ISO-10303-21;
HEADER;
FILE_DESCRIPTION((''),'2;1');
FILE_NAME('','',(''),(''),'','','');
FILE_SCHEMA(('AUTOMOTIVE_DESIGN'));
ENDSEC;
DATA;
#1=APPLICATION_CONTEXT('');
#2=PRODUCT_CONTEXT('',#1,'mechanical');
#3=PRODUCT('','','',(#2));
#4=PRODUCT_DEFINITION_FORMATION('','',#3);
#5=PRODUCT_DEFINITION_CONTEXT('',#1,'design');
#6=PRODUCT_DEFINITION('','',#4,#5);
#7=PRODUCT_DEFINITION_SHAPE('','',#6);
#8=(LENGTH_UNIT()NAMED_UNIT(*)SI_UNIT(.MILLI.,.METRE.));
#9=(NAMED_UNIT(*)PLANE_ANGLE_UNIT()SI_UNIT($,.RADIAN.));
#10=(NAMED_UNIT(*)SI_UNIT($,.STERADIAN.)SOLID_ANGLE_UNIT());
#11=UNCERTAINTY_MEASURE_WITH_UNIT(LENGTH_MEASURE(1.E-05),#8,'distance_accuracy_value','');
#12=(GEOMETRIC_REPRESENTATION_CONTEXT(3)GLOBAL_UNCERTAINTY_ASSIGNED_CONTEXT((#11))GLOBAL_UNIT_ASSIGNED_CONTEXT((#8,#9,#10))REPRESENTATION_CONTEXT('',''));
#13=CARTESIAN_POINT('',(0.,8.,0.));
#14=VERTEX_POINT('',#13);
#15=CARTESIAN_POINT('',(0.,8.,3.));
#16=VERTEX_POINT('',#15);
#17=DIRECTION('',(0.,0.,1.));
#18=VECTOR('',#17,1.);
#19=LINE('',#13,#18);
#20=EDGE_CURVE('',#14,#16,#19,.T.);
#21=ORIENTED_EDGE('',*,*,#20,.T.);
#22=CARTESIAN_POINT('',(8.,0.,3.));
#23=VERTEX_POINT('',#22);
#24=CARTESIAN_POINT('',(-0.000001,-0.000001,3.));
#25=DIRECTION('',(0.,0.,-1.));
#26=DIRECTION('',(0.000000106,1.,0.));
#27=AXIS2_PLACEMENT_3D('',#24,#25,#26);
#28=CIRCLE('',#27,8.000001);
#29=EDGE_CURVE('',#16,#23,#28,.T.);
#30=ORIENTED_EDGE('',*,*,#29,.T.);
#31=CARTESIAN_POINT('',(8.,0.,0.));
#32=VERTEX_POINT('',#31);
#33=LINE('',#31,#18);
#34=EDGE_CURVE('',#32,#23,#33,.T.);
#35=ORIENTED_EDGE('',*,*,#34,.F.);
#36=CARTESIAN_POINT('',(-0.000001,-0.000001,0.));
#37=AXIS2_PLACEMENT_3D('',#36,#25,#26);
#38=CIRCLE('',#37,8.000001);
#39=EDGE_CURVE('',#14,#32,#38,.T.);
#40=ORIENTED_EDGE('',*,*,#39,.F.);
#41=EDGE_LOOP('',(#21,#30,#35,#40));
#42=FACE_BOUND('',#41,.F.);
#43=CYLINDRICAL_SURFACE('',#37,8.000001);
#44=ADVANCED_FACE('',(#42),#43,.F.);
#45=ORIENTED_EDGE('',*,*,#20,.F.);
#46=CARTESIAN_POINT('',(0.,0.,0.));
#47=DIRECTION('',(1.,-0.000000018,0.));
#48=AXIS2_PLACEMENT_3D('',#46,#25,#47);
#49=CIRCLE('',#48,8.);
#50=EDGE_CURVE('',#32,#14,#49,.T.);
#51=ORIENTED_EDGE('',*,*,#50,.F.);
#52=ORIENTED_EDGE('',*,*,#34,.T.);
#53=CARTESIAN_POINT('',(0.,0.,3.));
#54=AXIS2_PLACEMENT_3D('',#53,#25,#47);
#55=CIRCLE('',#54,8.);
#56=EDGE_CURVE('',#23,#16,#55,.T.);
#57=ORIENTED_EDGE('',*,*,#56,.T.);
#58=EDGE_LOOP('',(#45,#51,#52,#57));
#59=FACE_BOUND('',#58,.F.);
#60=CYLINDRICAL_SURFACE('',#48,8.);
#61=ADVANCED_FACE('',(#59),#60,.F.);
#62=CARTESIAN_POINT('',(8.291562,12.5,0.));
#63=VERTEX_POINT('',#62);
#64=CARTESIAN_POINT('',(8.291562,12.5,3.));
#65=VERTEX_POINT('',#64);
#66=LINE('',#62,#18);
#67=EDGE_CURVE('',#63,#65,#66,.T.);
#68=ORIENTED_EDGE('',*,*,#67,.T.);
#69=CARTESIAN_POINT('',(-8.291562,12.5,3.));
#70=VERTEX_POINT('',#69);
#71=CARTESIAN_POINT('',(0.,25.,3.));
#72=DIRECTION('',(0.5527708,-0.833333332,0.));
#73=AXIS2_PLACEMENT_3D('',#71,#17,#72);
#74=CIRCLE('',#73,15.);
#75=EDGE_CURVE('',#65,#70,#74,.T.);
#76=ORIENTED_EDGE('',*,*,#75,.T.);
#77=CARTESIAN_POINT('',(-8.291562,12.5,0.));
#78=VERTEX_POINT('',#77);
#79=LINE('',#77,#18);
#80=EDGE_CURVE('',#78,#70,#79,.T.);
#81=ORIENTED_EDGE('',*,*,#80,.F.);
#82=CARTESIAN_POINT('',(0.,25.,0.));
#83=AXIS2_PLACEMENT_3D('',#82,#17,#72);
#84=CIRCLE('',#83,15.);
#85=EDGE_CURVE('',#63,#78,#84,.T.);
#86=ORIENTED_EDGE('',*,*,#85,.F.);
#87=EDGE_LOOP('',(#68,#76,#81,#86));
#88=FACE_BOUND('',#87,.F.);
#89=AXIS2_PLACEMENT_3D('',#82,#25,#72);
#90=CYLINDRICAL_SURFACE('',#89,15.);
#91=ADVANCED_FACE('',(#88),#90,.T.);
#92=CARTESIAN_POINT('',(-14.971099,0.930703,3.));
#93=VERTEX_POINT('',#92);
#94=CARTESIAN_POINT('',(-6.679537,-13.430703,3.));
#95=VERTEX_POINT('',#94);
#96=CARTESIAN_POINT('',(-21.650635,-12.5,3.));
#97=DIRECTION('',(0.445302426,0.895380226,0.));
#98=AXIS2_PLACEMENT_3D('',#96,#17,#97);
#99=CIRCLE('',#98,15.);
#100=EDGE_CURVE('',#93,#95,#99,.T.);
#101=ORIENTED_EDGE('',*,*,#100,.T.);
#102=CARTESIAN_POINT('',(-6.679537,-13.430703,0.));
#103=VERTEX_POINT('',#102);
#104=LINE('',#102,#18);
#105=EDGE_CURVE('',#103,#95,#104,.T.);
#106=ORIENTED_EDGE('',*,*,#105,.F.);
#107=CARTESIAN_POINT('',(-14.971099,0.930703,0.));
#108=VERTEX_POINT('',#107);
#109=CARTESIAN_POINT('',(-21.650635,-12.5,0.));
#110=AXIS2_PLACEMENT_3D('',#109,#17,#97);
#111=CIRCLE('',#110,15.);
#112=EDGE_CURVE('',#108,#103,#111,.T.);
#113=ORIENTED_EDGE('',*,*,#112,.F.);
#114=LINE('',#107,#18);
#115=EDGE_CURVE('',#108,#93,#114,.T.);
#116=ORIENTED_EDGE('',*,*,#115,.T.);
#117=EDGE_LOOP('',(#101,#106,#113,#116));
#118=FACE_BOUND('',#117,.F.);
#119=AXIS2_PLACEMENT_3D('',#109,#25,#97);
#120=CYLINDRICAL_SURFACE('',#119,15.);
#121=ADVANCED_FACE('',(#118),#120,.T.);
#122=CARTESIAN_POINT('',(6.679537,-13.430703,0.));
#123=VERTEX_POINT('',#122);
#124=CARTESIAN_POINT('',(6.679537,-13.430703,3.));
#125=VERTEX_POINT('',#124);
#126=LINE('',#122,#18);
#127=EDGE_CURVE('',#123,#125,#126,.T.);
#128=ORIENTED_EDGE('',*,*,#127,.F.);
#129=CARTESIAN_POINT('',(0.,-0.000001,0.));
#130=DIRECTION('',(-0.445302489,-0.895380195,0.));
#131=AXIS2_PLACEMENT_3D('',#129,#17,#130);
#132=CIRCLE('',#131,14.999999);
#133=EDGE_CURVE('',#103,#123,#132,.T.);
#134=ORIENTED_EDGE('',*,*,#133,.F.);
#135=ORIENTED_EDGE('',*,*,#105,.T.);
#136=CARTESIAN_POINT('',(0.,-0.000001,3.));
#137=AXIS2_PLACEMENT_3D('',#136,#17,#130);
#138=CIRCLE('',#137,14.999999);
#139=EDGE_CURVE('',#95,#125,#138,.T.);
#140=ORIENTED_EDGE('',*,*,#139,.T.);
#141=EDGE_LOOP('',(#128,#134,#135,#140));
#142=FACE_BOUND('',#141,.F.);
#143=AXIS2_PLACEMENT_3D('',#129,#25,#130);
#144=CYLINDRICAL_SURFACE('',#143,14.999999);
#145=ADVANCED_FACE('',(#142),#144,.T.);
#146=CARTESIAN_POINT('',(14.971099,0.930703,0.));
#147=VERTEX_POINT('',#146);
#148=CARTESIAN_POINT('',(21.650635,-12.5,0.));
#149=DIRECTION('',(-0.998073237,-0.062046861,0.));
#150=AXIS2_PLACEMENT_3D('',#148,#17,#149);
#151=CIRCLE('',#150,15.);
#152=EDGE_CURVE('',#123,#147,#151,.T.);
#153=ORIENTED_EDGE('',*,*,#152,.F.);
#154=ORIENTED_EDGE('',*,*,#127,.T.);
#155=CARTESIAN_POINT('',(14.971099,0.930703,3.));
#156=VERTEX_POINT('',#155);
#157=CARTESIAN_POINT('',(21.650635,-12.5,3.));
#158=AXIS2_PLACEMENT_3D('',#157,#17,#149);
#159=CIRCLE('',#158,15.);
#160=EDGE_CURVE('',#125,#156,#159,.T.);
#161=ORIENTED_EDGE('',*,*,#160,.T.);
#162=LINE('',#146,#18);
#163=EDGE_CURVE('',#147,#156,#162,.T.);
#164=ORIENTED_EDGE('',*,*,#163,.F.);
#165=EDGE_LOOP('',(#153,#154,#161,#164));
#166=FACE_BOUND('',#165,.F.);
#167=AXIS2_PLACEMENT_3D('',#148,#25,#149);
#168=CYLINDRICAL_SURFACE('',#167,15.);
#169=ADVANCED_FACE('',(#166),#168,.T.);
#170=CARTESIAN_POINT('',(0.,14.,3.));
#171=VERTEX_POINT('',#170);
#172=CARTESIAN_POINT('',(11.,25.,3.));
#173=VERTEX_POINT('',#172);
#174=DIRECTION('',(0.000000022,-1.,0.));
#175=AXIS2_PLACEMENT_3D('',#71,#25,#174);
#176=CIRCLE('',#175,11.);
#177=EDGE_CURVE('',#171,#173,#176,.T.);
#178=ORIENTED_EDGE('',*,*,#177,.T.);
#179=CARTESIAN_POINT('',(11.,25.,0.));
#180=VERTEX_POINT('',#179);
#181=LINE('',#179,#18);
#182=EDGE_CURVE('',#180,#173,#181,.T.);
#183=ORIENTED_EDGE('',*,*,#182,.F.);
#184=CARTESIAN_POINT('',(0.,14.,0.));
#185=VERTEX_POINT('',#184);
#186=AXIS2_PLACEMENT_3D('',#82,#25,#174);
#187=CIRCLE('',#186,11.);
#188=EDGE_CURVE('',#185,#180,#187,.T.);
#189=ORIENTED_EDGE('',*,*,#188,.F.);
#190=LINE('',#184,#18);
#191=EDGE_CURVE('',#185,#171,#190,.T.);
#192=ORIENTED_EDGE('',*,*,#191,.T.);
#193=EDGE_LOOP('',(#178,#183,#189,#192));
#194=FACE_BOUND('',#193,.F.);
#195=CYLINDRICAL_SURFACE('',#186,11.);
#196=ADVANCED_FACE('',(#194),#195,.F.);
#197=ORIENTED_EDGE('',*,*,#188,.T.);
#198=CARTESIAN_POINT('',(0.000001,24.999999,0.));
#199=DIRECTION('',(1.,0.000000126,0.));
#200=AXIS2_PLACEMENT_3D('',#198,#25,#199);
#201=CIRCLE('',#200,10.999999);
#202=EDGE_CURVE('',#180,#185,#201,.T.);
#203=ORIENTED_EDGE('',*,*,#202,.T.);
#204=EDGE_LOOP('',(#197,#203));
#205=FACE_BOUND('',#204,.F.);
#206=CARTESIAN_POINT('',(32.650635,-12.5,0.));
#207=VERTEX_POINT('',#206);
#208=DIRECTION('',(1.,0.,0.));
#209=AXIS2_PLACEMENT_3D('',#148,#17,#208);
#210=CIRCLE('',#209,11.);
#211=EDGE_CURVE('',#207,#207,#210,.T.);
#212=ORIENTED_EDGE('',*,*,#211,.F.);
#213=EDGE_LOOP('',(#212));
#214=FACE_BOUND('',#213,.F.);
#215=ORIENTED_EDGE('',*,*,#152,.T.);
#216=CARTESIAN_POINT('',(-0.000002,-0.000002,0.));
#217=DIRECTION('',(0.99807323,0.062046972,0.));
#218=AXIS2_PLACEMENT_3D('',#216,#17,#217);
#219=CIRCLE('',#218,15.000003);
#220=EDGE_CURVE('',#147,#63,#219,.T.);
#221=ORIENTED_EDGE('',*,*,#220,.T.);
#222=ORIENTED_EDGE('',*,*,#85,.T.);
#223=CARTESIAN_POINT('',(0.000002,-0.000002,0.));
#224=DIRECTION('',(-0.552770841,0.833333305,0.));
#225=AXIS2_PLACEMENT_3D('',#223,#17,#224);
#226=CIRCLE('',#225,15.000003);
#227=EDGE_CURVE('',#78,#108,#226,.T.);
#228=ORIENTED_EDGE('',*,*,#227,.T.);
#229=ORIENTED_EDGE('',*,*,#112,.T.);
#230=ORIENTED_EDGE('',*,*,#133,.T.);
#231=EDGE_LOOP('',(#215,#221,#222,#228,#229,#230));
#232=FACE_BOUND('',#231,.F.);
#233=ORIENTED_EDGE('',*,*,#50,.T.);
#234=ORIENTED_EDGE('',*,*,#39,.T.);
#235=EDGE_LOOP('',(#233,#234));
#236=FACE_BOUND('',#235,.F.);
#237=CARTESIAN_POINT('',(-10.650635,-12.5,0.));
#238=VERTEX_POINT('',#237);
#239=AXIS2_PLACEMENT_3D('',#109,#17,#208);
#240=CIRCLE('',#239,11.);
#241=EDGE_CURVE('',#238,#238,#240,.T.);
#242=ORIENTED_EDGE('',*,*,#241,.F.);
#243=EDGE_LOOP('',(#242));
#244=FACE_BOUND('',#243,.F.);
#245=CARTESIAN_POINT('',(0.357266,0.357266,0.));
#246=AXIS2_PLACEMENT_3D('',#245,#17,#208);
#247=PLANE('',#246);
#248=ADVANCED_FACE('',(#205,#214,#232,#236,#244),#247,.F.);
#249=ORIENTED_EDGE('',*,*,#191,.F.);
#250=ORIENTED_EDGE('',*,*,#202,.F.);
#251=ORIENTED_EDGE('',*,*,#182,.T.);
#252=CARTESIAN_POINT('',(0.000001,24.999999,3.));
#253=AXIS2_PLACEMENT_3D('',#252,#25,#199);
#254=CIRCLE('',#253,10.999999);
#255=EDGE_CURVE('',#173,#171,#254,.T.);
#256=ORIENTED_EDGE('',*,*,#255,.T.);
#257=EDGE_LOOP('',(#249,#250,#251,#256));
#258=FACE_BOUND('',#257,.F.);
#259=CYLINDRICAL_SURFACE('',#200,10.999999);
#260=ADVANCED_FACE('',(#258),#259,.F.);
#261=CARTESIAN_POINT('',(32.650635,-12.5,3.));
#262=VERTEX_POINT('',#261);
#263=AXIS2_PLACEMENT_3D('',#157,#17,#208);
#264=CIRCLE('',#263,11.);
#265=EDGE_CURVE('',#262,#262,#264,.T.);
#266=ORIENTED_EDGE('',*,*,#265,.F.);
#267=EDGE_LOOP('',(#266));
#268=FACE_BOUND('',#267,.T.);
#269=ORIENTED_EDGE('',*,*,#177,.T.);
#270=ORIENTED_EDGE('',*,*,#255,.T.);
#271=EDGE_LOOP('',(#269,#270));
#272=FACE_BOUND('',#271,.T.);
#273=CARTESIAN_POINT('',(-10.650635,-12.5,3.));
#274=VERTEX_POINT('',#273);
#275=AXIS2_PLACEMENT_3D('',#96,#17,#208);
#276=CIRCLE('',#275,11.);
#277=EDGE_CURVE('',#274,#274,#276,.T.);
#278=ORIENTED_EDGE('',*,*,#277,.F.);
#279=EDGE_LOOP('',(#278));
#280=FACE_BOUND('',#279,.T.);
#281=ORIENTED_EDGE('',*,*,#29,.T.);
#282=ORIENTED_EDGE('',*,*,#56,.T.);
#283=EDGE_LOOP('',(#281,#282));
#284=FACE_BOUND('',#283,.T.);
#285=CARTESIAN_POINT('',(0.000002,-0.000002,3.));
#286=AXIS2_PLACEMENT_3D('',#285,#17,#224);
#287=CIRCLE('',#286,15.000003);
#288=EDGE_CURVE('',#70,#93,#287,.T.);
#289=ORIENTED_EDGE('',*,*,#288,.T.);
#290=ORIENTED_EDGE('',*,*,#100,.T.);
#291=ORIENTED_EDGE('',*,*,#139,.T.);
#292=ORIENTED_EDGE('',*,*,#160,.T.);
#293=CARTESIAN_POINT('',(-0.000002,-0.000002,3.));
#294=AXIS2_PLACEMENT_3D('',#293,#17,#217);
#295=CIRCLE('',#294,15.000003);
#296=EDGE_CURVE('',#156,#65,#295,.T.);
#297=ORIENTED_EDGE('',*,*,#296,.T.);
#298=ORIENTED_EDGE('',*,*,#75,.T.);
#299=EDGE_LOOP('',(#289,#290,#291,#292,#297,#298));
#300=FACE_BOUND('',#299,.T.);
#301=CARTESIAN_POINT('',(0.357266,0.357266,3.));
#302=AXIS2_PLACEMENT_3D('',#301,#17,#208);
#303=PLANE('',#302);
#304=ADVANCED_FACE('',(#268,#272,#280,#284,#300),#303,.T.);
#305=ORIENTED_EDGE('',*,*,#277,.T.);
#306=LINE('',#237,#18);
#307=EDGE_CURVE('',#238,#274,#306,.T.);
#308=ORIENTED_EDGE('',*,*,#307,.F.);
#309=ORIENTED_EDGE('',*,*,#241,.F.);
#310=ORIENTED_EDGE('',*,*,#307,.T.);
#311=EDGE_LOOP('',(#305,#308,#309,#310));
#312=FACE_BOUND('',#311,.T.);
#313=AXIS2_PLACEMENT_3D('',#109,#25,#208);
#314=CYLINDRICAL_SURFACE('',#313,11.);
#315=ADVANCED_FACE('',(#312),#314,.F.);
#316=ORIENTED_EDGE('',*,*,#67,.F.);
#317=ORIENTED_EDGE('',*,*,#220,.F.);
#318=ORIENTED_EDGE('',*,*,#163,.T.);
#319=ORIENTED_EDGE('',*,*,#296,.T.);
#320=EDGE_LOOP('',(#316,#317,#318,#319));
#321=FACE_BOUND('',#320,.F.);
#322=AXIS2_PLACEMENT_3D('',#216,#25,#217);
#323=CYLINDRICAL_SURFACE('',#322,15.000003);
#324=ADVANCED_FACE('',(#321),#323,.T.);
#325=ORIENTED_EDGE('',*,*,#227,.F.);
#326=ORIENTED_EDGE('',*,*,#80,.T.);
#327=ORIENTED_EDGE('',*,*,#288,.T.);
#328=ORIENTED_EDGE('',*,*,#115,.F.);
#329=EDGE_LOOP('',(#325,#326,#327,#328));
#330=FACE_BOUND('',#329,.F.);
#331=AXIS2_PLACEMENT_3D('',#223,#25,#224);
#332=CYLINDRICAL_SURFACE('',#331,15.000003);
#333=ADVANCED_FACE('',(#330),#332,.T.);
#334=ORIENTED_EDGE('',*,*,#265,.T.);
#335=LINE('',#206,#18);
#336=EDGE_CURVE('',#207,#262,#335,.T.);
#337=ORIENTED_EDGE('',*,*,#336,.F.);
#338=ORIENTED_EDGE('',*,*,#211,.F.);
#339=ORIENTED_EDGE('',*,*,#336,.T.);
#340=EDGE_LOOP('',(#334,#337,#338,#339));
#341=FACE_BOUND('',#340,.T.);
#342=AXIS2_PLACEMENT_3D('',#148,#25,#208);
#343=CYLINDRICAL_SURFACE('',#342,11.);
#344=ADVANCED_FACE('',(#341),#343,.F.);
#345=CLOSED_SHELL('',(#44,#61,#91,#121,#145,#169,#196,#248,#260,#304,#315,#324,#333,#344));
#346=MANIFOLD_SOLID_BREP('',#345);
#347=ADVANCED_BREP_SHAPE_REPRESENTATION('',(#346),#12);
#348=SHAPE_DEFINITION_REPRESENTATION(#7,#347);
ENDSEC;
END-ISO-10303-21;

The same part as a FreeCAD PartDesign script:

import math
import FreeCAD as App
import Part
import Sketcher
from FreeCAD import Vector

doc = App.newDocument("Part")
body = doc.addObject("PartDesign::Body", "Body")

sketch1 = doc.addObject("Sketcher::SketchObject", "Sketch")
body.addObject(sketch1)
sketch1.AttachmentSupport = (doc.XY_Plane, [""])
sketch1.MapMode = "FlatFace"
sketch1.addGeometry([
    Part.ArcOfCircle(Part.Circle(Vector(0, 25, 0), Vector(0, 0, 1), 15), math.radians(-56), math.radians(236)),
    Part.ArcOfCircle(Part.Circle(Vector(0, 0, 0), Vector(0, 0, 1), 15), math.radians(124), math.radians(176)),
    Part.ArcOfCircle(Part.Circle(Vector(-22, -13, 0), Vector(0, 0, 1), 15), math.radians(64), math.radians(356)),
    Part.ArcOfCircle(Part.Circle(Vector(0, 0, 0), Vector(0, 0, 1), 15), math.radians(-116), math.radians(-64)),
    Part.ArcOfCircle(Part.Circle(Vector(22, -13, 0), Vector(0, 0, 1), 15), math.radians(-176), math.radians(116)),
    Part.ArcOfCircle(Part.Circle(Vector(0, 0, 0), Vector(0, 0, 1), 15), math.radians(4), math.radians(56)),
    Part.Circle(Vector(-22, -12, 0), Vector(0, 0, 1), 11),
    Part.Circle(Vector(22, -12, 0), Vector(0, 0, 1), 11),
    Part.ArcOfCircle(Part.Circle(Vector(0, 0, 0), Vector(0, 0, 1), 8), math.radians(90), math.radians(360)),
    Part.ArcOfCircle(Part.Circle(Vector(0, 0, 0), Vector(0, 0, 1), 8), math.radians(0), math.radians(90)),
    Part.ArcOfCircle(Part.Circle(Vector(0, 25, 0), Vector(0, 0, 1), 11), math.radians(0), math.radians(270)),
    Part.ArcOfCircle(Part.Circle(Vector(0, 25, 0), Vector(0, 0, 1), 11), math.radians(-90), math.radians(0)),
], False)
sketch1.addConstraint([
    Sketcher.Constraint("Coincident", 0, 2, 1, 1),
    Sketcher.Constraint("Coincident", 1, 2, 2, 1),
    Sketcher.Constraint("Coincident", 2, 2, 3, 1),
    Sketcher.Constraint("Coincident", 3, 2, 4, 1),
    Sketcher.Constraint("Coincident", 4, 2, 5, 1),
    Sketcher.Constraint("Coincident", 5, 2, 0, 1),
    Sketcher.Constraint("Tangent", 8, 1, 9, 2),
    Sketcher.Constraint("Coincident", 9, 1, 8, 2),
    Sketcher.Constraint("Tangent", 10, 1, 11, 2),
    Sketcher.Constraint("Coincident", 11, 1, 10, 2),
    Sketcher.Constraint("Coincident", 1, 3, -1, 1),
    Sketcher.Constraint("Coincident", 3, 3, -1, 1),
    Sketcher.Constraint("Coincident", 5, 3, -1, 1),
    Sketcher.Constraint("Coincident", 8, 3, -1, 1),
    Sketcher.Constraint("Coincident", 6, 3, 2, 3),
    Sketcher.Constraint("Coincident", 7, 3, 4, 3),
    Sketcher.Constraint("Coincident", 10, 3, 0, 3),
    Sketcher.Constraint("Equal", 0, 2),
    Sketcher.Constraint("Equal", 2, 3),
    Sketcher.Constraint("Equal", 3, 4),
    Sketcher.Constraint("Equal", 1, 5),
    Sketcher.Constraint("Equal", 6, 7),
    Sketcher.Constraint("Equal", 7, 10),
    Sketcher.Constraint("Symmetric", 2, 3, 4, 3, -2),
    Sketcher.Constraint("PointOnObject", 0, 3, -2),
    Sketcher.Constraint("PointOnObject", 8, 1, -2),
    Sketcher.Constraint("PointOnObject", 9, 1, -1),
    Sketcher.Constraint("PointOnObject", 11, 1, -2),
    Sketcher.Constraint("Horizontal", 11, 3, 10, 1),
    Sketcher.Constraint("Diameter", 6, 22.0),
    Sketcher.Constraint("Radius", 0, 15.0),
    Sketcher.Constraint("Radius", 8, 8.0),
    Sketcher.Constraint("DistanceY", -1, 1, 0, 3, 25.0),
    Sketcher.Constraint("DistanceY", 2, 3, -1, 1, 12.5),
    Sketcher.Constraint("DistanceY", -1, 1, 0, 2, 12.5),
    Sketcher.Constraint("DistanceX", 1, 2, -1, 1, 14.971099),
])
pad1 = doc.addObject("PartDesign::Pad", "Pad")
body.addObject(pad1)
pad1.Profile = sketch1
pad1.Length = 3

doc.recompute()
